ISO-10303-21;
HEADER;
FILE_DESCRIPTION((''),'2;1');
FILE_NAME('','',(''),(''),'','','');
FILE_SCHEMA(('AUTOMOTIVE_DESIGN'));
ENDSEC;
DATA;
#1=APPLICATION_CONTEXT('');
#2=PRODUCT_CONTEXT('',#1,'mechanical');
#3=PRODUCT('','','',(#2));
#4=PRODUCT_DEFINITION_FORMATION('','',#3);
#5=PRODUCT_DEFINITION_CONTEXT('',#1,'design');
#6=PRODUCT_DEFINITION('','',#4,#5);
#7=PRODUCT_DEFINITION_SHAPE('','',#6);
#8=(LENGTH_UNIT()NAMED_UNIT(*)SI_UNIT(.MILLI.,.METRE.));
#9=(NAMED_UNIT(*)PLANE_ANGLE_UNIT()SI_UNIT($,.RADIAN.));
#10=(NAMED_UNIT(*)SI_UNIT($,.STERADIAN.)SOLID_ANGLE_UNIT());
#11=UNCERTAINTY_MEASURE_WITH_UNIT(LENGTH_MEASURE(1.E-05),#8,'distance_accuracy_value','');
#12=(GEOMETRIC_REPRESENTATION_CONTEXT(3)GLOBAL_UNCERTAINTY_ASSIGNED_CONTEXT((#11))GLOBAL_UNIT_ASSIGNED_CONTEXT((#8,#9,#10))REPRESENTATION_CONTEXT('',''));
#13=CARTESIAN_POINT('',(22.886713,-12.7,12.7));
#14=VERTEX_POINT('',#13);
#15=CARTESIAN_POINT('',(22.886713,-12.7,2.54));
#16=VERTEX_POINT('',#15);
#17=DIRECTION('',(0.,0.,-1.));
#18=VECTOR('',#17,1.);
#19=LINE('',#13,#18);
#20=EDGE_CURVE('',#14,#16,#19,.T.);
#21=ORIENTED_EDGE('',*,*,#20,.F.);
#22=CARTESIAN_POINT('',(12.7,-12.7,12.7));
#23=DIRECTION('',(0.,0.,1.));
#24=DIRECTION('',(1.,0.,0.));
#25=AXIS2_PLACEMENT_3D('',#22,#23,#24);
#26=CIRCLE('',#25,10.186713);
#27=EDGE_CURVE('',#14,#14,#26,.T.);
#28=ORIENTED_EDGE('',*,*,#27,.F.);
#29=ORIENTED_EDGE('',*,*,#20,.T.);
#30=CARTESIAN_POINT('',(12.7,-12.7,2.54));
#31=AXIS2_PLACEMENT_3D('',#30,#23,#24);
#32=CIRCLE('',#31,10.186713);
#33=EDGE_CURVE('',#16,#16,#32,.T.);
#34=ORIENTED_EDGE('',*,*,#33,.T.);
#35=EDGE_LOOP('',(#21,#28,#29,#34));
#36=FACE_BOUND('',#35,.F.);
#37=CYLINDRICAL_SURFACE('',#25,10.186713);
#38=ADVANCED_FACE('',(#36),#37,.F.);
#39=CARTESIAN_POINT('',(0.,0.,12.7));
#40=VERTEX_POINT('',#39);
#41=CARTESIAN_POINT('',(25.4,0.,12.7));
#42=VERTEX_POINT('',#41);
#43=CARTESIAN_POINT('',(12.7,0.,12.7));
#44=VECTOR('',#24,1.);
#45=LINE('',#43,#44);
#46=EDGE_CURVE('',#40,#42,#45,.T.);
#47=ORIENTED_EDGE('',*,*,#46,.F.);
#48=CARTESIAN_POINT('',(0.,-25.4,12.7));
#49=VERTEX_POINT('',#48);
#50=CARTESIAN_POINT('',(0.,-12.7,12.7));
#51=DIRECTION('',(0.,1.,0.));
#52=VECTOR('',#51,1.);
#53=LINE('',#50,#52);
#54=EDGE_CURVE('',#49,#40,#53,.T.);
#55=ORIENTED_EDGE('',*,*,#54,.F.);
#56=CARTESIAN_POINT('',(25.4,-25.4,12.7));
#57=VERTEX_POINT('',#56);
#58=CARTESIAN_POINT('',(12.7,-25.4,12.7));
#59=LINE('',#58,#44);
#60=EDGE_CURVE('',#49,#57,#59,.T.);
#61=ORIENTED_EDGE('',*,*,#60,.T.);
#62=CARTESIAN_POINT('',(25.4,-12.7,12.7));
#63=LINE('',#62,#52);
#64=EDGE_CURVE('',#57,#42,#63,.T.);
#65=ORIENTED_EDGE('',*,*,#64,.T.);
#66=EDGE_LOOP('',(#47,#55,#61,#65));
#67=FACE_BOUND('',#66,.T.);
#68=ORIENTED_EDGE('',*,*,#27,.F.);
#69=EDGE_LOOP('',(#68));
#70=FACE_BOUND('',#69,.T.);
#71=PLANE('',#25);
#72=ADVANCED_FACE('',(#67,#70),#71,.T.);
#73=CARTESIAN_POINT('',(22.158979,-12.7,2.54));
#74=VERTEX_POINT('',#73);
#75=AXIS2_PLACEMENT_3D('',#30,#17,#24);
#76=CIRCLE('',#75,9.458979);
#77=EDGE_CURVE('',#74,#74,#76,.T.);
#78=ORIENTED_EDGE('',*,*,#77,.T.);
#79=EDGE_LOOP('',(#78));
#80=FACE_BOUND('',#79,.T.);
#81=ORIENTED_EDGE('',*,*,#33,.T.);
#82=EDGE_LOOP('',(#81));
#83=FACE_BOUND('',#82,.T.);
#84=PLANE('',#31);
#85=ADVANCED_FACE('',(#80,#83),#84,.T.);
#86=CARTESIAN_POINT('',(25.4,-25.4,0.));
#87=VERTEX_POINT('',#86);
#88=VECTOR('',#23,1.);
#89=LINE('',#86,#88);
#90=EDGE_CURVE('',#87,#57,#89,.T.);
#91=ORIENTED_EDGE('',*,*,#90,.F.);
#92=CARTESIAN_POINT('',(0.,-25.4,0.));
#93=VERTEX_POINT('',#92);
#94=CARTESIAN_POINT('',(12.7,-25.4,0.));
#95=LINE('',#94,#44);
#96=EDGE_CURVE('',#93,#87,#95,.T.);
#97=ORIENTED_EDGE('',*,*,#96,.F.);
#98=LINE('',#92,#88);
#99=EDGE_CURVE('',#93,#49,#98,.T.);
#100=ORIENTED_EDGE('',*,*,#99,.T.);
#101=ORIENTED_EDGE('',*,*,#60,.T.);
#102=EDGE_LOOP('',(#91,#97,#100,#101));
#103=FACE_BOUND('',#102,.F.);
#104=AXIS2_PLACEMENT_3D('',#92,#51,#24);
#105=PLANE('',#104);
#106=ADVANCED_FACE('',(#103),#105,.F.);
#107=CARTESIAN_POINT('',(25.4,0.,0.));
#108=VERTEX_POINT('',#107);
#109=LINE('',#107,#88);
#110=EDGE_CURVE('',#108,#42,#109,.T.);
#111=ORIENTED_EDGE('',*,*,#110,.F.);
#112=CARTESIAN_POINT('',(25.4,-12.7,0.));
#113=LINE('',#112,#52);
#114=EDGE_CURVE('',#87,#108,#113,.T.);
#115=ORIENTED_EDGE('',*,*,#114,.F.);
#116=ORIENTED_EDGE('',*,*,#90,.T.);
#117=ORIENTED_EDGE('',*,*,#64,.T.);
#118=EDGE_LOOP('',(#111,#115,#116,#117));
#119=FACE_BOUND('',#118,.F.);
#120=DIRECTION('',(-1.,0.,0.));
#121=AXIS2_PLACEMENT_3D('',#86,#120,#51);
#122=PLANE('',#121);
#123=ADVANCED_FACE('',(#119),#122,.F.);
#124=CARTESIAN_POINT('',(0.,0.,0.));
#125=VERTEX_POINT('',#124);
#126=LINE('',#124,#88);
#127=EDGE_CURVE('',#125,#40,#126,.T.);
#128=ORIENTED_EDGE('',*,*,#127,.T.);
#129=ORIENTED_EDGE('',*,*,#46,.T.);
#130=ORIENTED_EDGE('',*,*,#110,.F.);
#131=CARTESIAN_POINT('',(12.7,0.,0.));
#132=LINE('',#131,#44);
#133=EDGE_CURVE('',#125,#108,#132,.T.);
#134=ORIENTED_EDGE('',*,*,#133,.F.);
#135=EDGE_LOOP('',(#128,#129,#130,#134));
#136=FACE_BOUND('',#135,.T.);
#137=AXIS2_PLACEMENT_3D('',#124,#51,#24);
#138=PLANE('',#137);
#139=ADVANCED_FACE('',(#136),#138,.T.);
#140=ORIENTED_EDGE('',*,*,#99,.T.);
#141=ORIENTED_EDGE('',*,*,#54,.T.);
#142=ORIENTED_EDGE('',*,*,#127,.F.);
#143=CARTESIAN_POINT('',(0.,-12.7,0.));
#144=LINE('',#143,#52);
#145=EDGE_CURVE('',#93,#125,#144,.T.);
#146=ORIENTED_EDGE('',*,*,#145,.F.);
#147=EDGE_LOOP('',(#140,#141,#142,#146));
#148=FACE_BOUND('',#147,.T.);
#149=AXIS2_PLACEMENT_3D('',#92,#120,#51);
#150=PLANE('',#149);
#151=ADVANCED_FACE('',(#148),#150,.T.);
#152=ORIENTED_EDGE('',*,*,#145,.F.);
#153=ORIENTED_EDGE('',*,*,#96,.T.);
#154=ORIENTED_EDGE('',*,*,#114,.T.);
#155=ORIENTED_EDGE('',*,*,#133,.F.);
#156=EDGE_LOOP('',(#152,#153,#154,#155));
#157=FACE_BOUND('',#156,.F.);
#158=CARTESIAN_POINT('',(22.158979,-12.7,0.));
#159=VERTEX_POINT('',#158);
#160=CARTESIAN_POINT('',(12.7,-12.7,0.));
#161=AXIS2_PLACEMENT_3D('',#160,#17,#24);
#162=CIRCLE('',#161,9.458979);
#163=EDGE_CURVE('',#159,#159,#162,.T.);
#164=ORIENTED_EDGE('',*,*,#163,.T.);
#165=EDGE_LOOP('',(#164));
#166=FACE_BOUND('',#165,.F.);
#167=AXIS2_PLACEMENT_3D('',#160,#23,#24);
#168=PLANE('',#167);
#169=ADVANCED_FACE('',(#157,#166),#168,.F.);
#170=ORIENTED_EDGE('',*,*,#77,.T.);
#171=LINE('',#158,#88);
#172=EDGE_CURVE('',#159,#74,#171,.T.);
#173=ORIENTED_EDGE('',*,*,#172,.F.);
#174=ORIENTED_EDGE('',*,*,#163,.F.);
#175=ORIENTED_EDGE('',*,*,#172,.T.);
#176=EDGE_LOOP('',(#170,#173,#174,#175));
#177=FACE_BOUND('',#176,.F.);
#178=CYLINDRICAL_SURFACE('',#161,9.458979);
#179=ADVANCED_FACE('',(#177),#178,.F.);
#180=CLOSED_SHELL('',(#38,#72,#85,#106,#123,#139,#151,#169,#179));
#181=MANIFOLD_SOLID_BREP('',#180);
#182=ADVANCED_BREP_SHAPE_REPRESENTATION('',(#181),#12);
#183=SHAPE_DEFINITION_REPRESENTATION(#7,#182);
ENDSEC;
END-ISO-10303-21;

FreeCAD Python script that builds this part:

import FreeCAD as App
import Part
import Sketcher

V = App.Vector
Q = App.Units.Quantity

doc = App.newDocument("Part")
body = doc.addObject("PartDesign::Body", "Body")

sketch1 = doc.addObject("Sketcher::SketchObject", "Sketch")
body.addObject(sketch1)
sketch1.AttachmentSupport = (doc.XY_Plane, [""])
sketch1.MapMode = "FlatFace"
sketch1.addGeometry([
    Part.LineSegment(V(0, 0, 0), V(0, -25, 0)),
    Part.LineSegment(V(0, -25, 0), V(25, -25, 0)),
    Part.LineSegment(V(25, -25, 0), V(25, 0, 0)),
    Part.LineSegment(V(25, 0, 0), V(0, 0, 0)),
], False)
sketch1.addConstraint([
    Sketcher.Constraint("Coincident", 0, 2, 1, 1),
    Sketcher.Constraint("Coincident", 1, 2, 2, 1),
    Sketcher.Constraint("Coincident", 2, 2, 3, 1),
    Sketcher.Constraint("Coincident", 3, 2, 0, 1),
    Sketcher.Constraint("Vertical", 0),
    Sketcher.Constraint("Horizontal", 1),
    Sketcher.Constraint("Vertical", 2),
    Sketcher.Constraint("Horizontal", 3),
    Sketcher.Constraint("Coincident", 3, 2, -1, 1),
    Sketcher.Constraint("Equal", 3, 0),
    Sketcher.Constraint("DistanceX", 1, 1, 1, 2, Q("1 in")),
])
pad1 = doc.addObject("PartDesign::Pad", "Pad")
body.addObject(pad1)
pad1.Profile = sketch1
pad1.Length = Q("0.5 in")

sketch2 = doc.addObject("Sketcher::SketchObject", "Sketch001")
body.addObject(sketch2)
sketch2.AttachmentSupport = (doc.XY_Plane, [""])
sketch2.MapMode = "FlatFace"
sketch2.AttachmentOffset = App.Placement(V(0, 0, 0.5 * 25.4), App.Rotation())
sketch2.addGeometry(Part.Circle(V(13, -13, 0), V(0, 0, 1), 10), False)
sketch2.addConstraint([
    Sketcher.Constraint("DistanceX", -1, 1, 0, 3, Q("0.5 in")),
    Sketcher.Constraint("DistanceY", 0, 3, -1, 1, Q("0.5 in")),
    Sketcher.Constraint("Diameter", 0, Q("20.373426 mm")),
])
pocket1 = doc.addObject("PartDesign::Pocket", "Pocket")
body.addObject(pocket1)
pocket1.Profile = sketch2
pocket1.Length = Q("0.4 in")

sketch3 = doc.addObject("Sketcher::SketchObject", "Sketch002")
body.addObject(sketch3)
sketch3.AttachmentSupport = (doc.XY_Plane, [""])
sketch3.MapMode = "FlatFace"
sketch3.addGeometry(Part.Circle(V(13, -13, 0), V(0, 0, 1), 9), False)
sketch3.addConstraint([
    Sketcher.Constraint("DistanceX", -1, 1, 0, 3, Q("0.5 in")),
    Sketcher.Constraint("DistanceY", 0, 3, -1, 1, Q("0.5 in")),
    Sketcher.Constraint("Diameter", 0, Q("18.917958 mm")),
])
pocket2 = doc.addObject("PartDesign::Pocket", "Pocket001")
body.addObject(pocket2)
pocket2.Profile = sketch3
pocket2.Length = Q("0.1 in")
pocket2.Reversed = True

doc.recompute()
